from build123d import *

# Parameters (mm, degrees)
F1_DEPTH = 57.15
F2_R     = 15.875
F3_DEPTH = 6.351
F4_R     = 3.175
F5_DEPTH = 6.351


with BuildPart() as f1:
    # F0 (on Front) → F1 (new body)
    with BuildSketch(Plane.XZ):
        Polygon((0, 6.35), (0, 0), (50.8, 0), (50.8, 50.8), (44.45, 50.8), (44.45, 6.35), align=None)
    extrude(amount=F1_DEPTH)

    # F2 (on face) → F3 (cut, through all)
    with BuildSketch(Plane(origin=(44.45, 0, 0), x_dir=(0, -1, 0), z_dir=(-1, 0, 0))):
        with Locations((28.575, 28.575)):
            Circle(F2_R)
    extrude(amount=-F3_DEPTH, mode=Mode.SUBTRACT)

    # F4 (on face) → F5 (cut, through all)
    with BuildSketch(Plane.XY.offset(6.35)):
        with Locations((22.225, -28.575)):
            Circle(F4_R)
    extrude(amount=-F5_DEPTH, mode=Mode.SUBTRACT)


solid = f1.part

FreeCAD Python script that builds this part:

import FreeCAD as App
import Part
import Sketcher
Q = App.Units.Quantity


def add_polygon(sketch, points):
    """Adds a closed chain of lines whose ends are joined by coincident constraints."""
    first, n = sketch.GeometryCount, len(points)
    for a, b in zip(points, points[1:] + points[:1]):
        sketch.addGeometry(Part.LineSegment(App.Vector(*a, 0), App.Vector(*b, 0)), False)
    for i in range(n):
        sketch.addConstraint(Sketcher.Constraint("Coincident", first + i, 2, first + (i + 1) % n, 1))

doc = App.newDocument("Part")
body = doc.addObject("PartDesign::Body", "Body")

# Sketch on XZ plane
sketch1 = body.newObject("Sketcher::SketchObject", "Sketch")
sketch1.AttachmentSupport = (doc.getObject("XZ_Plane"), [""])
sketch1.MapMode = "FlatFace"
add_polygon(sketch1, [(0, 6), (0, 0), (51, 0), (51, 51), (44, 51), (44, 6)])  # lines 0-5
sketch1.addConstraint(Sketcher.Constraint("Vertical", 0))
sketch1.addConstraint(Sketcher.Constraint("Horizontal", 1))
sketch1.addConstraint(Sketcher.Constraint("Vertical", 2))
sketch1.addConstraint(Sketcher.Constraint("Horizontal", 3))
sketch1.addConstraint(Sketcher.Constraint("Vertical", 4))
sketch1.addConstraint(Sketcher.Constraint("Horizontal", 5))
sketch1.addConstraint(Sketcher.Constraint("Coincident", 0, 2, -1, 1))
sketch1.addConstraint(Sketcher.Constraint("Equal", 3, 0))
sketch1.addConstraint(Sketcher.Constraint("Equal", 1, 2))
sketch1.addConstraint(Sketcher.Constraint("DistanceX", 1, 1, 1, 2, Q("2 in")))
sketch1.addConstraint(Sketcher.Constraint("DistanceX", 3, 2, 3, 1, Q("0.25 in")))
pad1 = body.newObject("PartDesign::Pad", "Pad")
pad1.Profile = sketch1
pad1.Length = Q("2.25 in")

# Sketch on YZ plane
sketch2 = body.newObject("Sketcher::SketchObject", "Sketch001")
sketch2.AttachmentSupport = (doc.getObject("YZ_Plane"), [""])
sketch2.MapMode = "FlatFace"
sketch2.AttachmentOffset = App.Placement(App.Vector(0, 0, 1.75 * 25.4), App.Rotation())
sketch2.addGeometry(Part.Circle(App.Vector(-29, 29, 0), App.Vector(0, 0, 1), 16), False)
sketch2.addConstraint(Sketcher.Constraint("Diameter", 0, Q("1.25 in")))
sketch2.addConstraint(Sketcher.Constraint("DistanceX", 0, 3, -1, 1, Q("1.125 in")))
sketch2.addConstraint(Sketcher.Constraint("DistanceY", -1, 1, 0, 3, Q("1.125 in")))
pocket1 = body.newObject("PartDesign::Pocket", "Pocket")
pocket1.Profile = sketch2
pocket1.Type = "ThroughAll"
pocket1.Reversed = True

# Sketch on XY plane
sketch3 = body.newObject("Sketcher::SketchObject", "Sketch002")
sketch3.AttachmentSupport = (doc.getObject("XY_Plane"), [""])
sketch3.MapMode = "FlatFace"
sketch3.AttachmentOffset = App.Placement(App.Vector(0, 0, 0.25 * 25.4), App.Rotation())
sketch3.addGeometry(Part.Circle(App.Vector(22.2, -28.6, 0), App.Vector(0, 0, 1), 3.2), False)
sketch3.addConstraint(Sketcher.Constraint("Diameter", 0, Q("0.25 in")))
sketch3.addConstraint(Sketcher.Constraint("DistanceX", -1, 1, 0, 3, Q("0.875 in")))
sketch3.addConstraint(Sketcher.Constraint("DistanceY", 0, 3, -1, 1, Q("1.125 in")))
pocket2 = body.newObject("PartDesign::Pocket", "Pocket001")
pocket2.Profile = sketch3
pocket2.Type = "ThroughAll"

doc.recompute()
